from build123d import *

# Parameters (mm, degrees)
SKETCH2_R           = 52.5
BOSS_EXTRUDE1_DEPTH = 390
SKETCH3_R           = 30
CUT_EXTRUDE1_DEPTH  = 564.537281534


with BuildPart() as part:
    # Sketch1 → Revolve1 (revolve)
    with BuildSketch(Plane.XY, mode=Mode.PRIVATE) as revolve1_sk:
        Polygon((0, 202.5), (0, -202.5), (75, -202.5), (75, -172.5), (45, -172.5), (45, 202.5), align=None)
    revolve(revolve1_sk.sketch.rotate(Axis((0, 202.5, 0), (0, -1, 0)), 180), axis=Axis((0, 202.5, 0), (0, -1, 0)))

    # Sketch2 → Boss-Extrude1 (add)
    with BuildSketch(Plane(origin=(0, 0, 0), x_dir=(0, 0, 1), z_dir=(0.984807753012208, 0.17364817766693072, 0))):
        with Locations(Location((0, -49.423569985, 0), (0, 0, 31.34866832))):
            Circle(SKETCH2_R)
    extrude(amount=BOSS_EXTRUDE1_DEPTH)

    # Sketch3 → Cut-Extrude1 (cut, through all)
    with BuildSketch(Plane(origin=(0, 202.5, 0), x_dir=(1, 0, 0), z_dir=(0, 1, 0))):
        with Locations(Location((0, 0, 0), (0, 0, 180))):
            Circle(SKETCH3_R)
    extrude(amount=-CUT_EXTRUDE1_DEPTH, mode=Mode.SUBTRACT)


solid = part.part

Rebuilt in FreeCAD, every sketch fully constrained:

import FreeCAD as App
import Part
import Sketcher


def add_polygon(sketch, points):
    """Adds a closed chain of lines whose ends are joined by coincident constraints."""
    first, n = sketch.GeometryCount, len(points)
    for a, b in zip(points, points[1:] + points[:1]):
        sketch.addGeometry(Part.LineSegment(App.Vector(*a, 0), App.Vector(*b, 0)), False)
    for i in range(n):
        sketch.addConstraint(Sketcher.Constraint("Coincident", first + i, 2, first + (i + 1) % n, 1))

doc = App.newDocument("Part")
params = doc.addObject("Spreadsheet::Sheet", "Params")
for row, (alias, value) in enumerate([
    ("sketch1_width", "75 mm"),
    ("sketch1_width2", "30 mm"),
    ("sketch1_height", "405 mm"),
    ("revolution_angle", "360 deg"),
    ("sketch2_diameter", "105 mm"),
    ("pad1_length", "390 mm"),
    ("sketch3_diameter", "60 mm"),
], start=1):
    params.set(f"A{row}", alias)
    params.set(f"B{row}", "=" + value)
    params.setAlias(f"B{row}", alias)

body = doc.addObject("PartDesign::Body", "Body")

# Sketch on XY plane
sketch1 = body.newObject("Sketcher::SketchObject", "Sketch")
sketch1.AttachmentSupport = (doc.getObject("XY_Plane"), [""])
sketch1.MapMode = "FlatFace"
add_polygon(sketch1, [(0, 202), (0, -202), (75, -202), (75, -172), (45, -172), (45, 202)])  # lines 0-5
sketch1.addConstraint([
    Sketcher.Constraint("Vertical", 0),
    Sketcher.Constraint("Horizontal", 1),
    Sketcher.Constraint("Vertical", 2),
    Sketcher.Constraint("Horizontal", 3),
    Sketcher.Constraint("Vertical", 4),
    Sketcher.Constraint("Horizontal", 5),
    Sketcher.Constraint("Symmetric", 0, 2, 5, 2, -1, 1),
    Sketcher.Constraint("Equal", 3, 2),
    Sketcher.Constraint("DistanceX", 1, 1, 1, 2, 75.0),
    Sketcher.Constraint("DistanceX", 3, 2, 3, 1, 30.0),
    Sketcher.Constraint("DistanceY", 0, 2, 0, 1, 405.0),
])
sketch1.setExpression("Constraints[14]", "Params.sketch1_width")
sketch1.setExpression("Constraints[15]", "Params.sketch1_width2")
sketch1.setExpression("Constraints[16]", "Params.sketch1_height")
revolution = body.newObject("PartDesign::Revolution", "Revolution")
revolution.Profile = sketch1
revolution.ReferenceAxis = (sketch1, ["V_Axis"])
revolution.setExpression("Angle", "Params.revolution_angle")

# Sketch on an angled plane
sketch2 = body.newObject("Sketcher::SketchObject", "Sketch001")
sketch2.Placement = App.Placement(App.Vector(0, 0, 0), App.Rotation(App.Vector(0, 0, 1), App.Vector(0.173648178, -0.984807753, 0), App.Vector(0.984807753, 0.173648178, 0), "ZXY"))
sketch2.addGeometry(Part.Circle(App.Vector(0, -49, 0), App.Vector(0, 0, 1), 52), False)
sketch2.addConstraint([
    Sketcher.Constraint("PointOnObject", 0, 3, -2),
    Sketcher.Constraint("Diameter", 0, 105.0),
    Sketcher.Constraint("DistanceY", 0, 3, -1, 1, 49.42357),
])
sketch2.setExpression("Constraints[1]", "Params.sketch2_diameter")
pad1 = body.newObject("PartDesign::Pad", "Pad")
pad1.Profile = sketch2
pad1.setExpression("Length", "Params.pad1_length")

# Sketch on XZ plane
sketch3 = body.newObject("Sketcher::SketchObject", "Sketch002")
sketch3.AttachmentSupport = (doc.getObject("XZ_Plane"), [""])
sketch3.MapMode = "FlatFace"
sketch3.AttachmentOffset = App.Placement(App.Vector(0, 0, -202.5), App.Rotation())
sketch3.addGeometry(Part.Circle(App.Vector(0, 0, 0), App.Vector(0, 0, 1), 30), False)
sketch3.addConstraint([
    Sketcher.Constraint("Coincident", 0, 3, -1, 1),
    Sketcher.Constraint("Diameter", 0, 60.0),
])
sketch3.setExpression("Constraints[1]", "Params.sketch3_diameter")
pocket1 = body.newObject("PartDesign::Pocket", "Pocket")
pocket1.Profile = sketch3
pocket1.Type = "ThroughAll"
pocket1.Reversed = True

doc.recompute()
